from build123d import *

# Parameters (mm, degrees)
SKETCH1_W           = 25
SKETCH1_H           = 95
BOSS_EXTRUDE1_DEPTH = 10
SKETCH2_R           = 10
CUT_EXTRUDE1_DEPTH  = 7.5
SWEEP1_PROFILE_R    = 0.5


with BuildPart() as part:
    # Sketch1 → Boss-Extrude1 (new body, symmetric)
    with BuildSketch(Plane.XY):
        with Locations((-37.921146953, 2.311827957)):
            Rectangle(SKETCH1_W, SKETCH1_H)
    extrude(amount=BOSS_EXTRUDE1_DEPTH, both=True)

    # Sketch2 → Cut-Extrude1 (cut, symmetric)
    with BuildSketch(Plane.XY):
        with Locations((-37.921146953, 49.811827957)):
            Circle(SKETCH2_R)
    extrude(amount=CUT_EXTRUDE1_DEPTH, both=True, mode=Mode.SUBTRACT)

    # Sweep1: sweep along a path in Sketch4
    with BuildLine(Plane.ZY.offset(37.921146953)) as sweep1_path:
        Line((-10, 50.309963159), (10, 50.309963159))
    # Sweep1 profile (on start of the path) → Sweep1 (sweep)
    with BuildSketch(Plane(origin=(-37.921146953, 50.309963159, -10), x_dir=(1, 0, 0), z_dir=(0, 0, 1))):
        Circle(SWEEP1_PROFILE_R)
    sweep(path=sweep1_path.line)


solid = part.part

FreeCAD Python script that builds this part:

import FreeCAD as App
import Part
import Sketcher
from FreeCAD import Vector

doc = App.newDocument("Part")
body = doc.addObject("PartDesign::Body", "Body")

# Sketch on XY plane
sketch1 = body.newObject("Sketcher::SketchObject", "Sketch")
sketch1.AttachmentSupport = (doc.getObject("XY_Plane"), [""])
sketch1.MapMode = "FlatFace"
sketch1.addGeometry([
    Part.LineSegment(Vector(-50, 50, 0), Vector(-50, -45, 0)),
    Part.LineSegment(Vector(-50, -45, 0), Vector(-25, -45, 0)),
    Part.LineSegment(Vector(-25, -45, 0), Vector(-25, 50, 0)),
    Part.LineSegment(Vector(-25, 50, 0), Vector(-50, 50, 0)),
], False)
sketch1.addConstraint([
    Sketcher.Constraint("Coincident", 0, 2, 1, 1),
    Sketcher.Constraint("Coincident", 1, 2, 2, 1),
    Sketcher.Constraint("Coincident", 2, 2, 3, 1),
    Sketcher.Constraint("Coincident", 3, 2, 0, 1),
    Sketcher.Constraint("Vertical", 0),
    Sketcher.Constraint("Horizontal", 1),
    Sketcher.Constraint("Vertical", 2),
    Sketcher.Constraint("Horizontal", 3),
    Sketcher.Constraint("DistanceX", 1, 1, 1, 2, 25.0),
    Sketcher.Constraint("DistanceY", 0, 2, 0, 1, 95.0),
    Sketcher.Constraint("DistanceX", 0, 2, -1, 1, 50.421147),
    Sketcher.Constraint("DistanceY", 0, 2, -1, 1, 45.188172),
])
pad1 = body.newObject("PartDesign::Pad", "Pad")
pad1.Profile = sketch1
pad1.Length = 20
pad1.Midplane = True

# Sketch on XY plane
sketch2 = body.newObject("Sketcher::SketchObject", "Sketch001")
sketch2.AttachmentSupport = (doc.getObject("XY_Plane"), [""])
sketch2.MapMode = "FlatFace"
sketch2.addGeometry(Part.Circle(Vector(-38, 50, 0), Vector(0, 0, 1), 10), False)
sketch2.addConstraint([
    Sketcher.Constraint("Diameter", 0, 20.0),
    Sketcher.Constraint("DistanceX", 0, 3, -1, 1, 37.921147),
    Sketcher.Constraint("DistanceY", -1, 1, 0, 3, 49.811828),
])
pocket1 = body.newObject("PartDesign::Pocket", "Pocket")
pocket1.Profile = sketch2
pocket1.Length = 15
pocket1.Midplane = True

# Sketch on XY plane
sketch3 = body.newObject("Sketcher::SketchObject", "Sketch002")
sketch3.AttachmentSupport = (doc.getObject("XY_Plane"), [""])
sketch3.MapMode = "FlatFace"
sketch3.AttachmentOffset = App.Placement(Vector(0, 0, -10), App.Rotation())
sketch3.addGeometry(Part.Circle(Vector(-37.9, 50.3, 0), Vector(0, 0, 1), 0.5), False)
sketch3.addConstraint([
    Sketcher.Constraint("Diameter", 0, 1.0),
    Sketcher.Constraint("DistanceX", 0, 3, -1, 1, 37.921147),
    Sketcher.Constraint("DistanceY", -1, 1, 0, 3, 50.309963),
])

# Sketch on XZ plane
sketch4 = body.newObject("Sketcher::SketchObject", "Sketch003")
sketch4.AttachmentSupport = (doc.getObject("XZ_Plane"), [""])
sketch4.MapMode = "FlatFace"
sketch4.AttachmentOffset = App.Placement(Vector(0, 0, -50.309963), App.Rotation())
sketch4.addGeometry(Part.LineSegment(Vector(-38, -10, 0), Vector(-38, 10, 0)), False)
sketch4.addConstraint([
    Sketcher.Constraint("Vertical", 0),
    Sketcher.Constraint("DistanceY", 0, 1, 0, 2, 20.0),
    Sketcher.Constraint("DistanceY", 0, 1, -1, 1, 10.0),
    Sketcher.Constraint("DistanceX", 0, 1, -1, 1, 37.921147),
])
doc.recompute()

additivepipe = body.newObject("PartDesign::AdditivePipe", "AdditivePipe")
additivepipe.Profile = sketch3
additivepipe.Spine = (sketch4, ["Edge1"])

doc.recompute()
